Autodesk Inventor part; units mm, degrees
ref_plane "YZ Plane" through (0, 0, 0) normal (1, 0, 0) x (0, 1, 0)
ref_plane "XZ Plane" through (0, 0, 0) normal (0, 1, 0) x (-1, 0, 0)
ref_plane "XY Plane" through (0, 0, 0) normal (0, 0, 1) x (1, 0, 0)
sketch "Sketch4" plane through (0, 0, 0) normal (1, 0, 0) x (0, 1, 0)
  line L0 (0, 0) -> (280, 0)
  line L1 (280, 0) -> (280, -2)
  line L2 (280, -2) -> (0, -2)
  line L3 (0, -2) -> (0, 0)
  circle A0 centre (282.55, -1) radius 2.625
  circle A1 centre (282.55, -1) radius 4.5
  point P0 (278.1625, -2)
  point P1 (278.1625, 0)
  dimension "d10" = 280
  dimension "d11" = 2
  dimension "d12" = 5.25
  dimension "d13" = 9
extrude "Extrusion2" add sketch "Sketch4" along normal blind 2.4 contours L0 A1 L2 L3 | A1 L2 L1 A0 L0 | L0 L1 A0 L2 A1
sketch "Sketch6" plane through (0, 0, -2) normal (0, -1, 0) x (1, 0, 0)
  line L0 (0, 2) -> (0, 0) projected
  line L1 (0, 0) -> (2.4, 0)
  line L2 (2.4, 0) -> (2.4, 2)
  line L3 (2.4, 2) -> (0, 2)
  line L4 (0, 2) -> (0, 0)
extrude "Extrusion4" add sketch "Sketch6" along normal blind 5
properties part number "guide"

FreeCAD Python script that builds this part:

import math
import FreeCAD as App
import Part
import Sketcher
Q = App.Units.Quantity


def add_polygon(sketch, points):
    """Adds a closed chain of lines whose ends are joined by coincident constraints."""
    first, n = sketch.GeometryCount, len(points)
    for a, b in zip(points, points[1:] + points[:1]):
        sketch.addGeometry(Part.LineSegment(App.Vector(*a, 0), App.Vector(*b, 0)), False)
    for i in range(n):
        sketch.addConstraint(Sketcher.Constraint("Coincident", first + i, 2, first + (i + 1) % n, 1))

doc = App.newDocument("Part")
body = doc.addObject("PartDesign::Body", "Body")

# Sketch on YZ plane
sketch1 = body.newObject("Sketcher::SketchObject", "Sketch")
sketch1.AttachmentSupport = (doc.getObject("YZ_Plane"), [""])
sketch1.MapMode = "FlatFace"
sketch1.addGeometry(Part.LineSegment(App.Vector(278.162518, 0, 0), App.Vector(0, 0, 0)), False)
sketch1.addGeometry(Part.LineSegment(App.Vector(0, 0, 0), App.Vector(0, -2, 0)), False)
sketch1.addGeometry(Part.LineSegment(App.Vector(0, -2, 0), App.Vector(278.162518, -2, 0)), False)
sketch1.addGeometry(Part.ArcOfCircle(Part.Circle(App.Vector(282.55, -1, 0), App.Vector(0, 0, 1), 4.5), math.radians(-167.160412), math.radians(167.160412)), False)
sketch1.addGeometry(Part.Circle(App.Vector(282.55, -1, 0), App.Vector(0, 0, 1), 2.625), False)
sketch1.addConstraint(Sketcher.Constraint("Coincident", 0, 2, 1, 1))
sketch1.addConstraint(Sketcher.Constraint("Coincident", 1, 2, 2, 1))
sketch1.addConstraint(Sketcher.Constraint("Coincident", 2, 2, 3, 1))
sketch1.addConstraint(Sketcher.Constraint("Coincident", 3, 2, 0, 1))
sketch1.addConstraint(Sketcher.Constraint("Horizontal", 0))
sketch1.addConstraint(Sketcher.Constraint("Vertical", 1))
sketch1.addConstraint(Sketcher.Constraint("Horizontal", 2))
sketch1.addConstraint(Sketcher.Constraint("Coincident", 0, 2, -1, 1))
sketch1.addConstraint(Sketcher.Constraint("Coincident", 4, 3, 3, 3))
sketch1.addConstraint(Sketcher.Constraint("Vertical", 2, 2, 3, 2))
sketch1.addConstraint(Sketcher.Constraint("Radius", 3, Q("4.5 mm")))
sketch1.addConstraint(Sketcher.Constraint("Diameter", 4, Q("5.25 mm")))
sketch1.addConstraint(Sketcher.Constraint("DistanceY", 1, 2, 1, 1, Q("2 mm")))
sketch1.addConstraint(Sketcher.Constraint("DistanceX", -1, 1, 3, 3, Q("282.55 mm")))
pad1 = body.newObject("PartDesign::Pad", "Pad")
pad1.Profile = sketch1
pad1.Length = 2.4

# Sketch on XZ plane
sketch2 = body.newObject("Sketcher::SketchObject", "Sketch001")
sketch2.AttachmentSupport = (doc.getObject("XZ_Plane"), [""])
sketch2.MapMode = "FlatFace"
add_polygon(sketch2, [(2.4, 0), (0, 0), (0, -2), (2.4, -2)])  # lines 0-3
sketch2.addConstraint(Sketcher.Constraint("Horizontal", 0))
sketch2.addConstraint(Sketcher.Constraint("Vertical", 1))
sketch2.addConstraint(Sketcher.Constraint("Horizontal", 2))
sketch2.addConstraint(Sketcher.Constraint("Vertical", 3))
sketch2.addConstraint(Sketcher.Constraint("Coincident", 0, 2, -1, 1))
sketch2.addConstraint(Sketcher.Constraint("DistanceY", 1, 2, 1, 1, Q("2 mm")))
sketch2.addConstraint(Sketcher.Constraint("DistanceX", 0, 2, 0, 1, Q("2.4 mm")))
pad2 = body.newObject("PartDesign::Pad", "Pad001")
pad2.Profile = sketch2
pad2.Length = 5

doc.recompute()
